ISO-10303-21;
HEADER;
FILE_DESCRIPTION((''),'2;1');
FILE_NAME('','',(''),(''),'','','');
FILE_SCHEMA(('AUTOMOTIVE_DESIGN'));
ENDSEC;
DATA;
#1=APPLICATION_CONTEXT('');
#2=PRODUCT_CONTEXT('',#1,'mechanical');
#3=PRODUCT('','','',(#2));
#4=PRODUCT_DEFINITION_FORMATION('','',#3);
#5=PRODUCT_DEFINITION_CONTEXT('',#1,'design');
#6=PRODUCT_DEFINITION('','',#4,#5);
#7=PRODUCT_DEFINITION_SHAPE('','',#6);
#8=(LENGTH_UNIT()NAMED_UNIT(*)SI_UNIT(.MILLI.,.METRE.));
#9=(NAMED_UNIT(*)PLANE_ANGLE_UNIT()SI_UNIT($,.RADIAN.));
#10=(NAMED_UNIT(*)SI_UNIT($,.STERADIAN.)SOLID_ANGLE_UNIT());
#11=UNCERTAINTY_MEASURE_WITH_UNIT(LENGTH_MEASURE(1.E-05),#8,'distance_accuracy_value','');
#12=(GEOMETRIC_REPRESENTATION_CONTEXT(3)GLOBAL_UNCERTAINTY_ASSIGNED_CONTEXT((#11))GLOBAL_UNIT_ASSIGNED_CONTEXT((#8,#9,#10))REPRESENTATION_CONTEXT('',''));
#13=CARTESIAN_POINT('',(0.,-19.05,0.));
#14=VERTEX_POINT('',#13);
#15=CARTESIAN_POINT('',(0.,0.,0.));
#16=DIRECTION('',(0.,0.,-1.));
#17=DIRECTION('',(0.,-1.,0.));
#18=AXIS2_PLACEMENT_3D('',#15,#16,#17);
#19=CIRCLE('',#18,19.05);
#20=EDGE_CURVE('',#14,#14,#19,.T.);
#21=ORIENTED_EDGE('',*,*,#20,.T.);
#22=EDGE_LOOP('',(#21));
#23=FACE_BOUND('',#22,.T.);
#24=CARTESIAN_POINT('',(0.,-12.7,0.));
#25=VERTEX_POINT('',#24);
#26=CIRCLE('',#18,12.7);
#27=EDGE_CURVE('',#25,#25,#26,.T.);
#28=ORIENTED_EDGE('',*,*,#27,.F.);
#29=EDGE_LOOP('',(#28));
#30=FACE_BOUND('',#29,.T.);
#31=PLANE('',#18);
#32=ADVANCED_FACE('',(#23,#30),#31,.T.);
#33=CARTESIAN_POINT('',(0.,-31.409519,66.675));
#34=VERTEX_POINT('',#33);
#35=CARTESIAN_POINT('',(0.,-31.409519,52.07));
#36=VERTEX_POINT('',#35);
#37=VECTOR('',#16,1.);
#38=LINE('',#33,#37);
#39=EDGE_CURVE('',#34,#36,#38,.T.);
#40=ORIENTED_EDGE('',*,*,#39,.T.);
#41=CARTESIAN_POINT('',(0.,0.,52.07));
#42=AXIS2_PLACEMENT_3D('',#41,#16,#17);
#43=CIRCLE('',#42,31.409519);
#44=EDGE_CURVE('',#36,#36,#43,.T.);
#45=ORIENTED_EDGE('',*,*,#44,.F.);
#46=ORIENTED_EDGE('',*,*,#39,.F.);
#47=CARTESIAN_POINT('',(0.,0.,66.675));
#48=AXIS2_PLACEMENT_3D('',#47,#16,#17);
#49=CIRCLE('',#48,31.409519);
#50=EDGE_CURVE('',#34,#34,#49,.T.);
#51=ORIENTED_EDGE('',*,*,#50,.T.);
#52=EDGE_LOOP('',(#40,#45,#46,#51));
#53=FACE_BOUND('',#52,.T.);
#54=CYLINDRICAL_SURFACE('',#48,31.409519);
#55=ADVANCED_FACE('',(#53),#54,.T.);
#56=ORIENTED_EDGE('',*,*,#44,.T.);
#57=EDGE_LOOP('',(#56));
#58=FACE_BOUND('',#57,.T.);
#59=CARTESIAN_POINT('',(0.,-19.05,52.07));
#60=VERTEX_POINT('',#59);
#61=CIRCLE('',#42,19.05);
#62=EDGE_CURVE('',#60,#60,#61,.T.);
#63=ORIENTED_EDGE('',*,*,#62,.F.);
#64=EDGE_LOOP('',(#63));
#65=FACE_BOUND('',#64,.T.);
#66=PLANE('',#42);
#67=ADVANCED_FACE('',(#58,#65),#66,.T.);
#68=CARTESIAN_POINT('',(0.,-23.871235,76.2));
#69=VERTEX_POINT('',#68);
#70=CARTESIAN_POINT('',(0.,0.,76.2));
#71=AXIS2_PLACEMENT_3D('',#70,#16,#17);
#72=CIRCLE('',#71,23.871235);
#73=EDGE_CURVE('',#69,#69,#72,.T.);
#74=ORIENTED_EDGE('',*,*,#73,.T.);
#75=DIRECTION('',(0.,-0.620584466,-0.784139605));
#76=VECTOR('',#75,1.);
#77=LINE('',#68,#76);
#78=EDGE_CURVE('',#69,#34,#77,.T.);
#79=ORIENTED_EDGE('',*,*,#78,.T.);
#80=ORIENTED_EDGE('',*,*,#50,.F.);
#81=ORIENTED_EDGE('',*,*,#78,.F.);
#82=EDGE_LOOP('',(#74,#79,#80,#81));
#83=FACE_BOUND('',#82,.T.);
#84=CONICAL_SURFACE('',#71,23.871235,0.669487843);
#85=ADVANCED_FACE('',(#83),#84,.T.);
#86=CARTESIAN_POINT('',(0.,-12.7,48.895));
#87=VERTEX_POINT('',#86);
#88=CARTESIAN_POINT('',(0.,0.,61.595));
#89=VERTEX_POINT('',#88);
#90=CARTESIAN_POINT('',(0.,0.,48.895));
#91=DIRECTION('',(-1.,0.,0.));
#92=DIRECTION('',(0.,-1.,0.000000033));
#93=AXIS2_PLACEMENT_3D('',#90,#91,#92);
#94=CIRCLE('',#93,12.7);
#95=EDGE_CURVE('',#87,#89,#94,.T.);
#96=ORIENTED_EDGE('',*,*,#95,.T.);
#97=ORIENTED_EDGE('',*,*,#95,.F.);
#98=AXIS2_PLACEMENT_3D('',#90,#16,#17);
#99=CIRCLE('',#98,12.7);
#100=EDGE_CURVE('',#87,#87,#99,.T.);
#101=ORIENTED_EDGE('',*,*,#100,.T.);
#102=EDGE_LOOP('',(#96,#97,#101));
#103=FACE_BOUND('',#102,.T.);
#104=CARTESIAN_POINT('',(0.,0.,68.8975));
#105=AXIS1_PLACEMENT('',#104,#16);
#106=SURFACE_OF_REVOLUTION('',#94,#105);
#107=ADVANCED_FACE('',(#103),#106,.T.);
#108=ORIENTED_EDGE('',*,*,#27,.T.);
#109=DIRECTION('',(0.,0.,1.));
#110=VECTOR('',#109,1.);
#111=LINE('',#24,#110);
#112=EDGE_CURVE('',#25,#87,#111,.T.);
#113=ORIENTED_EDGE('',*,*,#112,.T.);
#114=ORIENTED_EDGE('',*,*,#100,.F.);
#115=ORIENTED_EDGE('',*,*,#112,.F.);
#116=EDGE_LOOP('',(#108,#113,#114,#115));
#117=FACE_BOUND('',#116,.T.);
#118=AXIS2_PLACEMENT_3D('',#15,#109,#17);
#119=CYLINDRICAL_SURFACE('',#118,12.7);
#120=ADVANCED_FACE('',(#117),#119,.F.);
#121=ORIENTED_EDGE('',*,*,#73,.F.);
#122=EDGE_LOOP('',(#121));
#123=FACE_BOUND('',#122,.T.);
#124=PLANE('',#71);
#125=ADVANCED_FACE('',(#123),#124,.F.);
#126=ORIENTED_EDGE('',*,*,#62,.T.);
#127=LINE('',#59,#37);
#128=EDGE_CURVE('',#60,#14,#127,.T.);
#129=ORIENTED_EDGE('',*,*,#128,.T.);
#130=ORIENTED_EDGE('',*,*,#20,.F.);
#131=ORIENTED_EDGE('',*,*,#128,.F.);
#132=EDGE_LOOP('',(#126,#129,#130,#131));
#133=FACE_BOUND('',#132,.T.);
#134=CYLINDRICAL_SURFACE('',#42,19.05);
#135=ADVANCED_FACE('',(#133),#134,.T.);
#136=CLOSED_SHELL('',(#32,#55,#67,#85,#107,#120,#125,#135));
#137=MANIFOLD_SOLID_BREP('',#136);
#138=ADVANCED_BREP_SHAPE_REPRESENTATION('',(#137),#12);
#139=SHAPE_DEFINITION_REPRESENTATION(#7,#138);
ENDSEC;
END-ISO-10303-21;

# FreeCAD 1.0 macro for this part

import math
import FreeCAD as App
import Part
import Sketcher
from FreeCAD import Vector
Q = App.Units.Quantity

doc = App.newDocument("Part")
body = doc.addObject("PartDesign::Body", "Body")

# Sketch on YZ plane
sketch1 = body.newObject("Sketcher::SketchObject", "Sketch")
sketch1.AttachmentSupport = (doc.getObject("YZ_Plane"), [""])
sketch1.MapMode = "FlatFace"
sketch1.addGeometry([
    Part.LineSegment(Vector(-19.05, 0, 0), Vector(-12.7, 0, 0)),  # 0
    Part.LineSegment(Vector(-12.7, 0, 0), Vector(-12.7, 48.895, 0)),  # 1
    Part.ArcOfCircle(Part.Circle(Vector(0, 48.895, 0), Vector(0, 0, 1), 12.7), math.radians(90.000002), math.radians(179.999998)),  # 2
    Part.LineSegment(Vector(0, 61.595, 0), Vector(0, 76.2, 0)),  # 3
    Part.LineSegment(Vector(0, 76.2, 0), Vector(-23.871235, 76.2, 0)),  # 4
    Part.LineSegment(Vector(-23.871235, 76.2, 0), Vector(-31.409519, 66.675, 0)),  # 5
    Part.LineSegment(Vector(-31.409519, 66.675, 0), Vector(-31.409519, 52.07, 0)),  # 6
    Part.LineSegment(Vector(-31.409519, 52.07, 0), Vector(-19.05, 52.07, 0)),  # 7
    Part.LineSegment(Vector(-19.05, 52.07, 0), Vector(-19.05, 0, 0)),  # 8
], False)
sketch1.addConstraint([
    Sketcher.Constraint("Coincident", 0, 2, 1, 1),
    Sketcher.Constraint("Tangent", 1, 2, 2, 2),
    Sketcher.Constraint("Coincident", 2, 1, 3, 1),
    Sketcher.Constraint("Coincident", 3, 2, 4, 1),
    Sketcher.Constraint("Coincident", 4, 2, 5, 1),
    Sketcher.Constraint("Coincident", 5, 2, 6, 1),
    Sketcher.Constraint("Coincident", 6, 2, 7, 1),
    Sketcher.Constraint("Coincident", 7, 2, 8, 1),
    Sketcher.Constraint("Coincident", 8, 2, 0, 1),
    Sketcher.Constraint("Horizontal", 0),
    Sketcher.Constraint("Vertical", 1),
    Sketcher.Constraint("Vertical", 3),
    Sketcher.Constraint("Horizontal", 4),
    Sketcher.Constraint("Vertical", 6),
    Sketcher.Constraint("Horizontal", 7),
    Sketcher.Constraint("Vertical", 8),
    Sketcher.Constraint("PointOnObject", 2, 3, -2),
    Sketcher.Constraint("PointOnObject", 0, 2, -1),
    Sketcher.Constraint("PointOnObject", 2, 1, -2),
    Sketcher.Constraint("Equal", 3, 6),
    Sketcher.Constraint("Radius", 2, Q("0.5 in")),
    Sketcher.Constraint("DistanceY", -1, 1, 3, 2, Q("3 in")),
    Sketcher.Constraint("DistanceX", 0, 1, 0, 2, Q("0.25 in")),
    Sketcher.Constraint("DistanceY", 8, 2, 8, 1, Q("2.05 in")),
    Sketcher.Constraint("DistanceY", 1, 2, 5, 2, Q("0.7 in")),
    Sketcher.Constraint("DistanceX", 7, 1, 7, 2, Q("12.359519 mm")),
    Sketcher.Constraint("Distance", 5, Q("12.147072 mm")),
])
revolution = body.newObject("PartDesign::Revolution", "Revolution")
revolution.Profile = sketch1
revolution.ReferenceAxis = (sketch1, ["V_Axis"])
revolution.Angle = 360

doc.recompute()
